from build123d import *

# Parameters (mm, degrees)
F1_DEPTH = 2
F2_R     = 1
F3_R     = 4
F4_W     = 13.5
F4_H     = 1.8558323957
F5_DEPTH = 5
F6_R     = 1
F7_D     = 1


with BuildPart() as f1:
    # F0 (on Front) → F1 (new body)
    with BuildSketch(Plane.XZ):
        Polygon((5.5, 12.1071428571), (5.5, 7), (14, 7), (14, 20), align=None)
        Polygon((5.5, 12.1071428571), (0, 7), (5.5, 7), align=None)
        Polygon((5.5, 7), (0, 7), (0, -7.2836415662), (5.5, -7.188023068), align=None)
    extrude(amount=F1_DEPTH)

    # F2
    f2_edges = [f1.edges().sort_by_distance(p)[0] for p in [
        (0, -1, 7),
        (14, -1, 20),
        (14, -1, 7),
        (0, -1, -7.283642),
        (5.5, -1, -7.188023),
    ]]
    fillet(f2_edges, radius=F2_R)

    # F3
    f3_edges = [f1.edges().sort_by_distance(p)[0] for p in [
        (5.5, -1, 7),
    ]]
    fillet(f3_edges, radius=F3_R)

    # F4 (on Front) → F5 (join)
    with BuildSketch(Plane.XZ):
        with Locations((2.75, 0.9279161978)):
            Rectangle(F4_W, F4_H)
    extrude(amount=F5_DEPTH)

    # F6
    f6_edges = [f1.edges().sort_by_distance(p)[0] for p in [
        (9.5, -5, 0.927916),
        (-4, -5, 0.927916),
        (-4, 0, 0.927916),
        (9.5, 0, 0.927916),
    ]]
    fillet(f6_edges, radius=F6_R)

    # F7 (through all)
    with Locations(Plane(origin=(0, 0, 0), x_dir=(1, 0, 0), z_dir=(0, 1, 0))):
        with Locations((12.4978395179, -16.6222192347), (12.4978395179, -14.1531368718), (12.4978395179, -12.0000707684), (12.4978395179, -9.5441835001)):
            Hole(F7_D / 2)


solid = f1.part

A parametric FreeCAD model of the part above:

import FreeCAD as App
import Part
import Sketcher

V = App.Vector


def edges_at(feature, points):
    """Names of the edges that pass closest to the given points."""
    edges = feature.Shape.Edges
    near = lambda p: min(range(len(edges)), key=lambda i: edges[i].distToShape(Part.Vertex(*p))[0])
    return sorted({f"Edge{near(p) + 1}" for p in points})

doc = App.newDocument("Part")
body = doc.addObject("PartDesign::Body", "Body")

sketch1 = body.newObject("Sketcher::SketchObject", "Sketch")
sketch1.AttachmentSupport = (doc.getObject("XZ_Plane"), [""])
sketch1.MapMode = "FlatFace"
sketch1.addGeometry([
    Part.LineSegment(V(14, 7, 0), V(14, 20, 0)),
    Part.LineSegment(V(14, 20, 0), V(5.5, 12.107143, 0)),
    Part.LineSegment(V(5.5, 12.107143, 0), V(0, 7, 0)),
    Part.LineSegment(V(0, 7, 0), V(0, -7.283642, 0)),
    Part.LineSegment(V(0, -7.283642, 0), V(5.5, -7.188023, 0)),
    Part.LineSegment(V(5.5, -7.188023, 0), V(5.5, 7, 0)),
    Part.LineSegment(V(5.5, 7, 0), V(14, 7, 0)),
], False)
sketch1.addConstraint([
    Sketcher.Constraint("Coincident", 0, 2, 1, 1),
    Sketcher.Constraint("Coincident", 1, 2, 2, 1),
    Sketcher.Constraint("Coincident", 2, 2, 3, 1),
    Sketcher.Constraint("Coincident", 3, 2, 4, 1),
    Sketcher.Constraint("Coincident", 4, 2, 5, 1),
    Sketcher.Constraint("Coincident", 5, 2, 6, 1),
    Sketcher.Constraint("Coincident", 6, 2, 0, 1),
    Sketcher.Constraint("Vertical", 0),
    Sketcher.Constraint("Vertical", 3),
    Sketcher.Constraint("Vertical", 5),
    Sketcher.Constraint("Horizontal", 6),
    Sketcher.Constraint("PointOnObject", 2, 2, -2),
    Sketcher.Constraint("Parallel", 1, 2),
    Sketcher.Constraint("Horizontal", 2, 2, 5, 2),
    Sketcher.Constraint("Vertical", 1, 2, 4, 2),
    Sketcher.Constraint("DistanceY", 0, 1, 0, 2, 13.0),
    Sketcher.Constraint("DistanceX", 6, 1, 6, 2, 8.5),
    Sketcher.Constraint("DistanceX", -1, 1, 0, 2, 14.0),
    Sketcher.Constraint("DistanceY", -1, 1, 0, 2, 20.0),
    Sketcher.Constraint("DistanceY", 3, 2, 3, 1, 14.283642),
    Sketcher.Constraint("Distance", 4, 5.500831),
])
pad1 = body.newObject("PartDesign::Pad", "Pad")
pad1.Profile = sketch1
pad1.Length = 2
doc.recompute()

fillet = body.newObject("PartDesign::Fillet", "Fillet")
fillet.Base = (pad1, edges_at(pad1, [
    (0, -1, 7),
    (14, -1, 20),
    (14, -1, 7),
    (0, -1, -7.284),
    (5.5, -1, -7.188),
]))
fillet.Radius = 1
doc.recompute()

fillet2 = body.newObject("PartDesign::Fillet", "Fillet001")
fillet2.Base = (fillet, edges_at(fillet, [(5.5, -1, 7)]))
fillet2.Radius = 4

sketch2 = body.newObject("Sketcher::SketchObject", "Sketch001")
sketch2.AttachmentSupport = (doc.getObject("XZ_Plane"), [""])
sketch2.MapMode = "FlatFace"
sketch2.addGeometry([
    Part.LineSegment(V(-4, 1.9, 0), V(-4, 0, 0)),
    Part.LineSegment(V(-4, 0, 0), V(9.5, 0, 0)),
    Part.LineSegment(V(9.5, 0, 0), V(9.5, 1.9, 0)),
    Part.LineSegment(V(9.5, 1.9, 0), V(-4, 1.9, 0)),
], False)
sketch2.addConstraint([
    Sketcher.Constraint("Coincident", 0, 2, 1, 1),
    Sketcher.Constraint("Coincident", 1, 2, 2, 1),
    Sketcher.Constraint("Coincident", 2, 2, 3, 1),
    Sketcher.Constraint("Coincident", 3, 2, 0, 1),
    Sketcher.Constraint("Vertical", 0),
    Sketcher.Constraint("Horizontal", 1),
    Sketcher.Constraint("Vertical", 2),
    Sketcher.Constraint("Horizontal", 3),
    Sketcher.Constraint("PointOnObject", 0, 2, -1),
    Sketcher.Constraint("DistanceX", 1, 1, 1, 2, 13.5),
    Sketcher.Constraint("DistanceX", 0, 2, -1, 1, 4.0),
    Sketcher.Constraint("DistanceY", 0, 2, 0, 1, 1.855832),
])
pad2 = body.newObject("PartDesign::Pad", "Pad001")
pad2.Profile = sketch2
pad2.Length = 5
doc.recompute()

fillet3 = body.newObject("PartDesign::Fillet", "Fillet002")
fillet3.Base = (pad2, edges_at(pad2, [
    (9.5, -5, 0.928),
    (-4, -5, 0.928),
    (-4, 0, 0.928),
    (9.5, 0, 0.928),
]))
fillet3.Radius = 1

sketch3 = body.newObject("Sketcher::SketchObject", "Sketch002")
sketch3.AttachmentSupport = (doc.getObject("XZ_Plane"), [""])
sketch3.MapMode = "FlatFace"
sketch3.addGeometry([
    Part.Circle(V(12.5, 16.6, 0), V(0, 0, 1), 0.5),
    Part.Circle(V(12.5, 14.2, 0), V(0, 0, 1), 0.5),
    Part.Circle(V(12.5, 12, 0), V(0, 0, 1), 0.5),
    Part.Circle(V(12.5, 9.5, 0), V(0, 0, 1), 0.5),
], False)
sketch3.addConstraint([
    Sketcher.Constraint("Equal", 0, 1),
    Sketcher.Constraint("Equal", 1, 2),
    Sketcher.Constraint("Equal", 2, 3),
    Sketcher.Constraint("Vertical", 0, 3, 1, 3),
    Sketcher.Constraint("Vertical", 1, 3, 2, 3),
    Sketcher.Constraint("Vertical", 2, 3, 3, 3),
    Sketcher.Constraint("Diameter", 0, 1.0),
    Sketcher.Constraint("DistanceX", -1, 1, 0, 3, 12.49784),
    Sketcher.Constraint("DistanceY", -1, 1, 0, 3, 16.622219),
    Sketcher.Constraint("DistanceY", -1, 1, 2, 3, 12.000071),
    Sketcher.Constraint("DistanceY", -1, 1, 1, 3, 14.153137),
    Sketcher.Constraint("DistanceY", -1, 1, 3, 3, 9.544184),
])
doc.recompute()
hole = body.newObject("PartDesign::Hole", "Hole")
hole.Profile = sketch3
hole.ThreadType = "None"
hole.Diameter = 1
hole.DepthType = "ThroughAll"
hole.Reversed = True

doc.recompute()
